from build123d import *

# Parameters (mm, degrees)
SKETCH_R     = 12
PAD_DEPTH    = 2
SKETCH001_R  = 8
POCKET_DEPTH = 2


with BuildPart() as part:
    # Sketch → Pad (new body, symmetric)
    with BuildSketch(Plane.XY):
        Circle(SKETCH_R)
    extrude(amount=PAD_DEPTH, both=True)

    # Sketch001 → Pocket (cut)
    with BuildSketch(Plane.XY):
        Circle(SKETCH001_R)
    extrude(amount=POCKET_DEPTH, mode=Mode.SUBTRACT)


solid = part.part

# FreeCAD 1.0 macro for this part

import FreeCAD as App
import Part
import Sketcher
Q = App.Units.Quantity

doc = App.newDocument("Part")
body = doc.addObject("PartDesign::Body", "Body")

sketch1 = body.newObject("Sketcher::SketchObject", "Sketch")
sketch1.AttachmentSupport = (doc.getObject("XY_Plane"), [""])
sketch1.MapMode = "FlatFace"
sketch1.addGeometry(Part.Circle(App.Vector(0, 0, 0), App.Vector(0, 0, 1), 12), False)
sketch1.addConstraint([
    Sketcher.Constraint("Coincident", 0, 3, -1, 1),
    Sketcher.Constraint("Diameter", 0, Q("24 mm")),
])
pad1 = body.newObject("PartDesign::Pad", "Pad")
pad1.Profile = sketch1
pad1.Length = 4
pad1.Midplane = True

sketch2 = body.newObject("Sketcher::SketchObject", "Sketch001")
sketch2.AttachmentSupport = (doc.getObject("XY_Plane"), [""])
sketch2.MapMode = "FlatFace"
sketch2.addGeometry(Part.Circle(App.Vector(0, 0, 0), App.Vector(0, 0, 1), 8), False)
sketch2.addConstraint([
    Sketcher.Constraint("Coincident", 0, 3, -1, 1),
    Sketcher.Constraint("Diameter", 0, Q("16 mm")),
])
pocket1 = body.newObject("PartDesign::Pocket", "Pocket")
pocket1.Profile = sketch2
pocket1.Length = 2
pocket1.Reversed = True

doc.recompute()
